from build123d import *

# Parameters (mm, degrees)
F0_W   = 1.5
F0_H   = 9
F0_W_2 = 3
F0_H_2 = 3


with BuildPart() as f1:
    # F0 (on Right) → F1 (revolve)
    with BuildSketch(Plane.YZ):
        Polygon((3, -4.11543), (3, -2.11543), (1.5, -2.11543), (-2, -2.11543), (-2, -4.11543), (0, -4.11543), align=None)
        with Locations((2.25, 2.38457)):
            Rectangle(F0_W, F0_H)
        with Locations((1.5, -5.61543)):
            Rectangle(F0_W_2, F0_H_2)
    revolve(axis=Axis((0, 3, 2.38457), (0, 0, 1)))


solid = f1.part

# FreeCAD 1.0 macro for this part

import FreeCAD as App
import Part
import Sketcher
Q = App.Units.Quantity


def add_polygon(sketch, points):
    """Adds a closed chain of lines whose ends are joined by coincident constraints."""
    first, n = sketch.GeometryCount, len(points)
    for a, b in zip(points, points[1:] + points[:1]):
        sketch.addGeometry(Part.LineSegment(App.Vector(*a, 0), App.Vector(*b, 0)), False)
    for i in range(n):
        sketch.addConstraint(Sketcher.Constraint("Coincident", first + i, 2, first + (i + 1) % n, 1))

doc = App.newDocument("Part")
body = doc.addObject("PartDesign::Body", "Body")

sketch1 = body.newObject("Sketcher::SketchObject", "Sketch")
sketch1.AttachmentSupport = (doc.getObject("YZ_Plane"), [""])
sketch1.MapMode = "FlatFace"
add_polygon(sketch1, [(3, 6.9), (1.5, 6.9), (1.5, -2.1), (-2, -2.1), (-2, -4.1), (0, -4.1), (0, -7.1), (3, -7.1)])
sketch1.addGeometry(Part.LineSegment(App.Vector(3, -7.1, 0), App.Vector(3, 6.9, 0)), True)
sketch1.addConstraint([
    Sketcher.Constraint("Horizontal", 0),
    Sketcher.Constraint("Vertical", 1),
    Sketcher.Constraint("Horizontal", 2),
    Sketcher.Constraint("Vertical", 3),
    Sketcher.Constraint("Horizontal", 4),
    Sketcher.Constraint("Vertical", 5),
    Sketcher.Constraint("Horizontal", 6),
    Sketcher.Constraint("Vertical", 7),
    Sketcher.Constraint("Vertical", 8),
    Sketcher.Constraint("Coincident", 8, 1, 6, 2),
    Sketcher.Constraint("PointOnObject", 4, 2, -2),
    Sketcher.Constraint("Horizontal", 0, 2, 8, 2),
    Sketcher.Constraint("Equal", 4, 3),
    Sketcher.Constraint("Equal", 6, 5),
    Sketcher.Constraint("DistanceX", 4, 1, 4, 2, Q("2 mm")),
    Sketcher.Constraint("DistanceX", 6, 1, 6, 2, Q("3 mm")),
    Sketcher.Constraint("DistanceY", 1, 2, 1, 1, Q("9 mm")),
    Sketcher.Constraint("DistanceX", 0, 2, 0, 1, Q("1.5 mm")),
    Sketcher.Constraint("DistanceY", -1, 1, 0, 2, Q("6.88457 mm")),
])
revolution = body.newObject("PartDesign::Revolution", "Revolution")
revolution.Profile = sketch1
revolution.ReferenceAxis = (sketch1, ["Axis0"])
revolution.Angle = 360

doc.recompute()
